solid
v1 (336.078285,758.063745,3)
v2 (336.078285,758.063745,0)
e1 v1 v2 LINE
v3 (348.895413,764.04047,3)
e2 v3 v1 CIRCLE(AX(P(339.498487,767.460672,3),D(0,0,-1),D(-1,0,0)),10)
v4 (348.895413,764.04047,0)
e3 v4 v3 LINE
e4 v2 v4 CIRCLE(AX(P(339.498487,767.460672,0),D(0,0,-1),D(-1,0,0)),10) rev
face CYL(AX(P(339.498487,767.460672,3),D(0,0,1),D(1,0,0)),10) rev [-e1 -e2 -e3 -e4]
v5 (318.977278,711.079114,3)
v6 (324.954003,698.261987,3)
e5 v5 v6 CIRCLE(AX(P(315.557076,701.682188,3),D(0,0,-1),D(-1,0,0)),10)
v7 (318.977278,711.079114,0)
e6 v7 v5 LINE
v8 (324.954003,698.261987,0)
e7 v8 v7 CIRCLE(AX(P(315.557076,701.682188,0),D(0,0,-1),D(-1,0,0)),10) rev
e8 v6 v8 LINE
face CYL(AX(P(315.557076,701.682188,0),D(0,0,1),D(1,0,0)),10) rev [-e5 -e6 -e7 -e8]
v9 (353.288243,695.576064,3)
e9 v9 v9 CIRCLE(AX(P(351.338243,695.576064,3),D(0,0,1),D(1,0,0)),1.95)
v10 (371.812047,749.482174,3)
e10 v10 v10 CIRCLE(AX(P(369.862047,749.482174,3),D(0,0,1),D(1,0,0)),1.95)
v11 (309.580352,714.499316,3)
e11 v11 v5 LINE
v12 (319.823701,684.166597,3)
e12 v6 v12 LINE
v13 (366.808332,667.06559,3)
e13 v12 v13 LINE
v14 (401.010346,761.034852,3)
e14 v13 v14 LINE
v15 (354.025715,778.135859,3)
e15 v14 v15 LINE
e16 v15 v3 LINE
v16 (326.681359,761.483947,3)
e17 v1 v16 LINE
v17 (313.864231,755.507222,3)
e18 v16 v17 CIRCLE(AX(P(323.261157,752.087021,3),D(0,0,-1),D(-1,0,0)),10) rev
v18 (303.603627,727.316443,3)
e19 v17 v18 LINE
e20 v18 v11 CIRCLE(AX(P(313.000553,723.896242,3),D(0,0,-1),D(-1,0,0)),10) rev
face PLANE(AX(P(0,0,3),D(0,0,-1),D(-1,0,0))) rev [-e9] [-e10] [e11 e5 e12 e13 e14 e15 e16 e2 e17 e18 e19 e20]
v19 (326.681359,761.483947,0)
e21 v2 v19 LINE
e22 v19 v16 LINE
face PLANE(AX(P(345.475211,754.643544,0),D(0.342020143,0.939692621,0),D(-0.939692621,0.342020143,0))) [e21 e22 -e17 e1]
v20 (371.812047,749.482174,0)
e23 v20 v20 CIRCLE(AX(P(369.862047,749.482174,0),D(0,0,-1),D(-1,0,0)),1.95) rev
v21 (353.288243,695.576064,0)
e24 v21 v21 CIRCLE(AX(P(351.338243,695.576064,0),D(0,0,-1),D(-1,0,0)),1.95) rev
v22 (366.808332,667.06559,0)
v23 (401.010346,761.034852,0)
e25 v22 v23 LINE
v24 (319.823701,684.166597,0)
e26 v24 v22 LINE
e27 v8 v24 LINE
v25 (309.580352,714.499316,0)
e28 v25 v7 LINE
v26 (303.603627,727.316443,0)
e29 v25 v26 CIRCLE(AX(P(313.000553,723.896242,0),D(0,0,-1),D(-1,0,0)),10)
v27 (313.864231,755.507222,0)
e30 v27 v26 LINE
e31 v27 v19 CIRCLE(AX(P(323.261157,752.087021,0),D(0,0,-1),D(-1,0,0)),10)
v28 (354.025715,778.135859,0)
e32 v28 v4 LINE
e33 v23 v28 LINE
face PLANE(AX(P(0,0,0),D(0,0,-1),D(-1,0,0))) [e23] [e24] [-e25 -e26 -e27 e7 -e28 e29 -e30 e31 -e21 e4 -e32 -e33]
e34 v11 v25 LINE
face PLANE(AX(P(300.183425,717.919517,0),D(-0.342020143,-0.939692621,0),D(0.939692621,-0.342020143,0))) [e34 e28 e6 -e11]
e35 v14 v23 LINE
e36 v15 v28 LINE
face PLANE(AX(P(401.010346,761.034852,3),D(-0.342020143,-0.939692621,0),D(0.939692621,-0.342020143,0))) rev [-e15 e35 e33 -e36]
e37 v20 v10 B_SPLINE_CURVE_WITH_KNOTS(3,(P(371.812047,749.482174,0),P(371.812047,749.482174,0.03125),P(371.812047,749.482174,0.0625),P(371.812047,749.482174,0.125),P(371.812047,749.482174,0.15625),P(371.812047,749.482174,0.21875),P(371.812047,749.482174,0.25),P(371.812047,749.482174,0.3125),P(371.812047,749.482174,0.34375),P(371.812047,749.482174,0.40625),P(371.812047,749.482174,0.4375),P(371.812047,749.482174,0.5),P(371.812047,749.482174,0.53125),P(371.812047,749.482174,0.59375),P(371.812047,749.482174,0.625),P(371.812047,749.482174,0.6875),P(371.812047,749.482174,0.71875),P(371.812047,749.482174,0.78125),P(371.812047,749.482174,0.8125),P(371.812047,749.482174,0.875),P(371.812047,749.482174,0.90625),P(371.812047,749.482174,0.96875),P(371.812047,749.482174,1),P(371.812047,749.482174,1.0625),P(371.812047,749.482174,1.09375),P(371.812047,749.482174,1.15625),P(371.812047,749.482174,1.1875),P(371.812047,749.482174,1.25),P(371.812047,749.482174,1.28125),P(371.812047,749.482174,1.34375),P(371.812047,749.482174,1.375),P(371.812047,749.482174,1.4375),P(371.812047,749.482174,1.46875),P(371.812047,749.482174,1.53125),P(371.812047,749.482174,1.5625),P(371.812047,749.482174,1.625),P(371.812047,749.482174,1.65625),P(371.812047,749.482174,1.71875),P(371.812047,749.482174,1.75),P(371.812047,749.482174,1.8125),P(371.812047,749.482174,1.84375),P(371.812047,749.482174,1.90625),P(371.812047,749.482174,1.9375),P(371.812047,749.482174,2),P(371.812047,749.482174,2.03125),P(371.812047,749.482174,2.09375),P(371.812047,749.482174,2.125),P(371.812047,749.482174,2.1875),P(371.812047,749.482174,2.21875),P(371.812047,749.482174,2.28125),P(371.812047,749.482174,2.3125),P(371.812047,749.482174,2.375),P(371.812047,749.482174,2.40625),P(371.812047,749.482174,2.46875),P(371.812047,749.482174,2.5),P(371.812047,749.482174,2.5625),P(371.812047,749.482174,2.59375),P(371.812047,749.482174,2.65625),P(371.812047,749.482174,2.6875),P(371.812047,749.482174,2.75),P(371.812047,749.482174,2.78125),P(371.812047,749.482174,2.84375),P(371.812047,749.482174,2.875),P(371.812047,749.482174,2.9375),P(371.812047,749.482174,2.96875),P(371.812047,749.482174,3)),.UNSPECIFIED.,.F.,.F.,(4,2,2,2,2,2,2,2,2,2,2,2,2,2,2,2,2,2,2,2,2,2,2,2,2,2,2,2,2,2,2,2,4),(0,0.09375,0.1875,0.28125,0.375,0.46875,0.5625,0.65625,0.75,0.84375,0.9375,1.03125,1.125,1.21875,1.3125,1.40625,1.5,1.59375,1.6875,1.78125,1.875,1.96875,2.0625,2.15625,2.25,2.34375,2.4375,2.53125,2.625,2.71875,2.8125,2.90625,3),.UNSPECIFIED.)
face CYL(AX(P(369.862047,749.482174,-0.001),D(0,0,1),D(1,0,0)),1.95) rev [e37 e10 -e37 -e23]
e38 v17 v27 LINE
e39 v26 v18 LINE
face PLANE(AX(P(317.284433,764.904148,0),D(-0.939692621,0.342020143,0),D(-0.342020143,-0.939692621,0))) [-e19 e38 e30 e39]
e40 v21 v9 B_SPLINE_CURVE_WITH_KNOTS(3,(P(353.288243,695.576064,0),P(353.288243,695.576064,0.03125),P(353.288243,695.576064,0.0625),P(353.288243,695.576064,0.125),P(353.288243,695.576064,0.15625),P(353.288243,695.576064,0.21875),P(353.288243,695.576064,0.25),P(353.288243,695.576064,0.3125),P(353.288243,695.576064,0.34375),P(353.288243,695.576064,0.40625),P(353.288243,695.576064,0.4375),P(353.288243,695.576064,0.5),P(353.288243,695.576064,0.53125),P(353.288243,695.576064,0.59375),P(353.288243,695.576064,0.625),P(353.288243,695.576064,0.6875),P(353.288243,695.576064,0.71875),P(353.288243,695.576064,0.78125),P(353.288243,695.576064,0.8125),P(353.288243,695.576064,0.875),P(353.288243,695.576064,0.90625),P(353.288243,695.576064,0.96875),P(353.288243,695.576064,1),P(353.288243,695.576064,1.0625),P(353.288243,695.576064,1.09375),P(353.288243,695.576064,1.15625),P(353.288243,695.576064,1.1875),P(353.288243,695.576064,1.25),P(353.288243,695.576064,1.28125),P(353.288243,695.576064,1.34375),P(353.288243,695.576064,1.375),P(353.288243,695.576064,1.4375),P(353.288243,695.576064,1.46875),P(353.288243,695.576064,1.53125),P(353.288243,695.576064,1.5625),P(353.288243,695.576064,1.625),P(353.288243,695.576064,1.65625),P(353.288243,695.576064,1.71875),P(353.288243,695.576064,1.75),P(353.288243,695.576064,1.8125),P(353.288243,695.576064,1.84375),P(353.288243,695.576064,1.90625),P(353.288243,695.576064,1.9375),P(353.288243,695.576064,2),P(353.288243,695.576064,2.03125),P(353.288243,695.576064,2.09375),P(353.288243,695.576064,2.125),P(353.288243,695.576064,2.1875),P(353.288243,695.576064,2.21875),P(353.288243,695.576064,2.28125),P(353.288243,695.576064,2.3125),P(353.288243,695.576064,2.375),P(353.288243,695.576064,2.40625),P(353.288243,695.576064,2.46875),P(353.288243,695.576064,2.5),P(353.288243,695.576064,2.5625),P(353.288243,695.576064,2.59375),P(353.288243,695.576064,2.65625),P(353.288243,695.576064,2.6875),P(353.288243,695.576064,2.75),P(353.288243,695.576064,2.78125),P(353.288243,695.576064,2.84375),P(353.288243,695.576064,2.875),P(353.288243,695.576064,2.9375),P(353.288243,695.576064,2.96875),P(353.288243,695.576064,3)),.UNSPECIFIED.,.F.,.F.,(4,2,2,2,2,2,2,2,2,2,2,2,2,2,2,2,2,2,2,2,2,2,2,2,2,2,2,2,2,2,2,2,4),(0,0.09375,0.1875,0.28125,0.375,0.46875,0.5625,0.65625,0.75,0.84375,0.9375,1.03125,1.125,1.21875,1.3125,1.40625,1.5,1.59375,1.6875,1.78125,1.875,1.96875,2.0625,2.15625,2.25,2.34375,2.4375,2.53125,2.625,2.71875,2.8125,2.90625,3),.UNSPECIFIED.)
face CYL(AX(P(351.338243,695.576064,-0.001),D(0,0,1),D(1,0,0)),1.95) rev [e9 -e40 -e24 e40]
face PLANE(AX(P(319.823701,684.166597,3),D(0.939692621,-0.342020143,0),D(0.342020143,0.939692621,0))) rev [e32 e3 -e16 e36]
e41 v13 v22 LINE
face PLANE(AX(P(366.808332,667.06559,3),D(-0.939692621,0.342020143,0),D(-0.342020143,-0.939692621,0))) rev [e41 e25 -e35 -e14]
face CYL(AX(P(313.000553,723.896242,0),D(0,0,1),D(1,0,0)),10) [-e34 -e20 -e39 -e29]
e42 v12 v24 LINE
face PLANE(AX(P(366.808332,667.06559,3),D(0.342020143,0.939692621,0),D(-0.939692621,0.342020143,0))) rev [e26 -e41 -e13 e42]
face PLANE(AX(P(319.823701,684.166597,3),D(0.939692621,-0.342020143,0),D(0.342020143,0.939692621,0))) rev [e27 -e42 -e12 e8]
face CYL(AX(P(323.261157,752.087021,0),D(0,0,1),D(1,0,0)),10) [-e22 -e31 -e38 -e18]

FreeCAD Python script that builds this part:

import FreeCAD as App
import Part
import Sketcher

V = App.Vector
Q = App.Units.Quantity


def edges_at(feature, points):
    """Names of the edges that pass closest to the given points."""
    edges = feature.Shape.Edges
    near = lambda p: min(range(len(edges)), key=lambda i: edges[i].distToShape(Part.Vertex(*p))[0])
    return sorted({f"Edge{near(p) + 1}" for p in points})

doc = App.newDocument("Part")
body = doc.addObject("PartDesign::Body", "Body")

sketch1 = body.newObject("Sketcher::SketchObject", "Sketch")
sketch1.AttachmentSupport = (doc.getObject("XY_Plane"), [""])
sketch1.MapMode = "FlatFace"
sketch1.addGeometry([
    Part.LineSegment(V(367, 667, 0), V(401, 761, 0)),
    Part.LineSegment(V(401, 761, 0), V(354, 778, 0)),
    Part.LineSegment(V(354, 778, 0), V(320, 684, 0)),
    Part.LineSegment(V(320, 684, 0), V(367, 667, 0)),
], False)
sketch1.addConstraint([
    Sketcher.Constraint("Coincident", 0, 2, 1, 1),
    Sketcher.Constraint("Coincident", 1, 2, 2, 1),
    Sketcher.Constraint("Coincident", 2, 2, 3, 1),
    Sketcher.Constraint("Coincident", 3, 2, 0, 1),
    Sketcher.Constraint("Perpendicular", 0, 1),
    Sketcher.Constraint("Perpendicular", 1, 2),
    Sketcher.Constraint("Perpendicular", 2, 3),
    Sketcher.Constraint("Angle", 0, Q("70 deg")),
    Sketcher.Constraint("Distance", 0, Q("100 mm")),
    Sketcher.Constraint("Distance", 1, Q("50 mm")),
    Sketcher.Constraint("DistanceX", -1, 1, 2, 2, Q("319.823701 mm")),
    Sketcher.Constraint("DistanceY", -1, 1, 1, 2, Q("778.135859 mm")),
])
pad1 = body.newObject("PartDesign::Pad", "Pad")
pad1.Profile = sketch1
pad1.Length = 3

sketch2 = body.newObject("Sketcher::SketchObject", "Sketch001")
sketch2.AttachmentSupport = (doc.getObject("XY_Plane"), [""])
sketch2.MapMode = "FlatFace"
sketch2.AttachmentOffset = App.Placement(V(0, 0, 3), App.Rotation())
sketch2.addGeometry(Part.Circle(V(351.3, 695.6, 0), V(0, 0, 1), 1.9), False)
sketch2.addConstraint([
    Sketcher.Constraint("Diameter", 0, Q("3.9 mm")),
    Sketcher.Constraint("DistanceX", -1, 1, 0, 3, Q("351.338243 mm")),
    Sketcher.Constraint("DistanceY", -1, 1, 0, 3, Q("695.576064 mm")),
])
pocket1 = body.newObject("PartDesign::Pocket", "Pocket")
pocket1.Profile = sketch2
pocket1.Type = "UpToFirst"

sketch3 = body.newObject("Sketcher::SketchObject", "Sketch002")
sketch3.AttachmentSupport = (doc.getObject("XY_Plane"), [""])
sketch3.MapMode = "FlatFace"
sketch3.AttachmentOffset = App.Placement(V(0, 0, 3), App.Rotation())
sketch3.addGeometry(Part.Circle(V(369.9, 749.5, 0), V(0, 0, 1), 1.9), False)
sketch3.addConstraint([
    Sketcher.Constraint("Diameter", 0, Q("3.9 mm")),
    Sketcher.Constraint("DistanceX", -1, 1, 0, 3, Q("369.862047 mm")),
    Sketcher.Constraint("DistanceY", -1, 1, 0, 3, Q("749.482174 mm")),
])
pocket2 = body.newObject("PartDesign::Pocket", "Pocket001")
pocket2.Profile = sketch3
pocket2.Type = "UpToFirst"

sketch4 = body.newObject("Sketcher::SketchObject", "Sketch003")
sketch4.AttachmentSupport = (doc.getObject("XY_Plane"), [""])
sketch4.MapMode = "FlatFace"
sketch4.AttachmentOffset = App.Placement(V(0, 0, 3), App.Rotation())
sketch4.addGeometry([
    Part.LineSegment(V(345, 755, 0), V(317, 765, 0)),
    Part.LineSegment(V(317, 765, 0), V(300, 718, 0)),
    Part.LineSegment(V(300, 718, 0), V(328, 708, 0)),
    Part.LineSegment(V(328, 708, 0), V(345, 755, 0)),
], False)
sketch4.addConstraint([
    Sketcher.Constraint("Coincident", 0, 2, 1, 1),
    Sketcher.Constraint("Coincident", 1, 2, 2, 1),
    Sketcher.Constraint("Coincident", 2, 2, 3, 1),
    Sketcher.Constraint("Coincident", 3, 2, 0, 1),
    Sketcher.Constraint("Perpendicular", 0, 1),
    Sketcher.Constraint("Perpendicular", 1, 2),
    Sketcher.Constraint("Perpendicular", 2, 3),
    Sketcher.Constraint("Angle", 0, Q("160 deg")),
    Sketcher.Constraint("Distance", 0, Q("30 mm")),
    Sketcher.Constraint("Distance", 1, Q("50 mm")),
    Sketcher.Constraint("DistanceY", -1, 1, 0, 2, Q("764.904148 mm")),
    Sketcher.Constraint("DistanceX", -1, 1, 3, 2, Q("345.475211 mm")),
])
pad2 = body.newObject("PartDesign::Pad", "Pad001")
pad2.Profile = sketch4
pad2.Length = 3
pad2.Reversed = True
doc.recompute()

fillet = body.newObject("PartDesign::Fillet", "Fillet")
fillet.Base = (pad2, edges_at(pad2, [
    (345.475, 754.644, 1.5),
    (328.374, 707.659, 1.5),
    (300.183, 717.92, 1.5),
    (317.284, 764.904, 1.5),
]))
fillet.Radius = 10

doc.recompute()
